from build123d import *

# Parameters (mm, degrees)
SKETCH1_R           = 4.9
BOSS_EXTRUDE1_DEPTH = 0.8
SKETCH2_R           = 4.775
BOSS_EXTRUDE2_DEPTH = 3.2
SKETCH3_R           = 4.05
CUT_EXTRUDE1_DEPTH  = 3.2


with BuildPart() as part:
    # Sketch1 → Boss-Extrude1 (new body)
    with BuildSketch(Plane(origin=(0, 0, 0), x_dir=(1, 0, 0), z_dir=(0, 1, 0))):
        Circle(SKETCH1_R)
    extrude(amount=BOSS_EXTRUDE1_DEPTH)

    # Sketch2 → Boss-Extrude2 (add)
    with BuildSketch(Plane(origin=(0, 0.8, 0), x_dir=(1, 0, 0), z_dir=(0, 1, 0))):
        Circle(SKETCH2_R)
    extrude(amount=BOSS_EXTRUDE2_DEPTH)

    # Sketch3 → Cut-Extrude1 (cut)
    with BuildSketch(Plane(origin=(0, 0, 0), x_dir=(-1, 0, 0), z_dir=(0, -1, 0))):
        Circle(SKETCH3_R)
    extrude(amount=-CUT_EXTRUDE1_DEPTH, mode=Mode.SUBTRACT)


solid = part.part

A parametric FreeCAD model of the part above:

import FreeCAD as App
import Part
import Sketcher
from FreeCAD import Vector
Q = App.Units.Quantity

doc = App.newDocument("Part")
body = doc.addObject("PartDesign::Body", "Body")

sketch1 = body.newObject("Sketcher::SketchObject", "Sketch")
sketch1.AttachmentSupport = (doc.getObject("XZ_Plane"), [""])
sketch1.MapMode = "FlatFace"
sketch1.addGeometry(Part.Circle(Vector(0, 0, 0), Vector(0, 0, 1), 4.9), False)
sketch1.addConstraint([
    Sketcher.Constraint("Coincident", 0, 3, -1, 1),
    Sketcher.Constraint("Diameter", 0, Q("9.8 mm")),
])
pad1 = body.newObject("PartDesign::Pad", "Pad")
pad1.Profile = sketch1
pad1.Length = 0.8
pad1.Reversed = True

sketch2 = body.newObject("Sketcher::SketchObject", "Sketch001")
sketch2.AttachmentSupport = (doc.getObject("XZ_Plane"), [""])
sketch2.MapMode = "FlatFace"
sketch2.AttachmentOffset = App.Placement(Vector(0, 0, -0.8), App.Rotation())
sketch2.addGeometry(Part.Circle(Vector(0, 0, 0), Vector(0, 0, 1), 4.8), False)
sketch2.addConstraint([
    Sketcher.Constraint("Coincident", 0, 3, -1, 1),
    Sketcher.Constraint("Diameter", 0, Q("9.55 mm")),
])
pad2 = body.newObject("PartDesign::Pad", "Pad001")
pad2.Profile = sketch2
pad2.Length = 3.2
pad2.Reversed = True

sketch3 = body.newObject("Sketcher::SketchObject", "Sketch002")
sketch3.AttachmentSupport = (doc.getObject("XZ_Plane"), [""])
sketch3.MapMode = "FlatFace"
sketch3.addGeometry(Part.Circle(Vector(0, 0, 0), Vector(0, 0, 1), 4), False)
sketch3.addConstraint([
    Sketcher.Constraint("Coincident", 0, 3, -1, 1),
    Sketcher.Constraint("Diameter", 0, Q("8.1 mm")),
])
pocket1 = body.newObject("PartDesign::Pocket", "Pocket")
pocket1.Profile = sketch3
pocket1.Length = 3.2

doc.recompute()
